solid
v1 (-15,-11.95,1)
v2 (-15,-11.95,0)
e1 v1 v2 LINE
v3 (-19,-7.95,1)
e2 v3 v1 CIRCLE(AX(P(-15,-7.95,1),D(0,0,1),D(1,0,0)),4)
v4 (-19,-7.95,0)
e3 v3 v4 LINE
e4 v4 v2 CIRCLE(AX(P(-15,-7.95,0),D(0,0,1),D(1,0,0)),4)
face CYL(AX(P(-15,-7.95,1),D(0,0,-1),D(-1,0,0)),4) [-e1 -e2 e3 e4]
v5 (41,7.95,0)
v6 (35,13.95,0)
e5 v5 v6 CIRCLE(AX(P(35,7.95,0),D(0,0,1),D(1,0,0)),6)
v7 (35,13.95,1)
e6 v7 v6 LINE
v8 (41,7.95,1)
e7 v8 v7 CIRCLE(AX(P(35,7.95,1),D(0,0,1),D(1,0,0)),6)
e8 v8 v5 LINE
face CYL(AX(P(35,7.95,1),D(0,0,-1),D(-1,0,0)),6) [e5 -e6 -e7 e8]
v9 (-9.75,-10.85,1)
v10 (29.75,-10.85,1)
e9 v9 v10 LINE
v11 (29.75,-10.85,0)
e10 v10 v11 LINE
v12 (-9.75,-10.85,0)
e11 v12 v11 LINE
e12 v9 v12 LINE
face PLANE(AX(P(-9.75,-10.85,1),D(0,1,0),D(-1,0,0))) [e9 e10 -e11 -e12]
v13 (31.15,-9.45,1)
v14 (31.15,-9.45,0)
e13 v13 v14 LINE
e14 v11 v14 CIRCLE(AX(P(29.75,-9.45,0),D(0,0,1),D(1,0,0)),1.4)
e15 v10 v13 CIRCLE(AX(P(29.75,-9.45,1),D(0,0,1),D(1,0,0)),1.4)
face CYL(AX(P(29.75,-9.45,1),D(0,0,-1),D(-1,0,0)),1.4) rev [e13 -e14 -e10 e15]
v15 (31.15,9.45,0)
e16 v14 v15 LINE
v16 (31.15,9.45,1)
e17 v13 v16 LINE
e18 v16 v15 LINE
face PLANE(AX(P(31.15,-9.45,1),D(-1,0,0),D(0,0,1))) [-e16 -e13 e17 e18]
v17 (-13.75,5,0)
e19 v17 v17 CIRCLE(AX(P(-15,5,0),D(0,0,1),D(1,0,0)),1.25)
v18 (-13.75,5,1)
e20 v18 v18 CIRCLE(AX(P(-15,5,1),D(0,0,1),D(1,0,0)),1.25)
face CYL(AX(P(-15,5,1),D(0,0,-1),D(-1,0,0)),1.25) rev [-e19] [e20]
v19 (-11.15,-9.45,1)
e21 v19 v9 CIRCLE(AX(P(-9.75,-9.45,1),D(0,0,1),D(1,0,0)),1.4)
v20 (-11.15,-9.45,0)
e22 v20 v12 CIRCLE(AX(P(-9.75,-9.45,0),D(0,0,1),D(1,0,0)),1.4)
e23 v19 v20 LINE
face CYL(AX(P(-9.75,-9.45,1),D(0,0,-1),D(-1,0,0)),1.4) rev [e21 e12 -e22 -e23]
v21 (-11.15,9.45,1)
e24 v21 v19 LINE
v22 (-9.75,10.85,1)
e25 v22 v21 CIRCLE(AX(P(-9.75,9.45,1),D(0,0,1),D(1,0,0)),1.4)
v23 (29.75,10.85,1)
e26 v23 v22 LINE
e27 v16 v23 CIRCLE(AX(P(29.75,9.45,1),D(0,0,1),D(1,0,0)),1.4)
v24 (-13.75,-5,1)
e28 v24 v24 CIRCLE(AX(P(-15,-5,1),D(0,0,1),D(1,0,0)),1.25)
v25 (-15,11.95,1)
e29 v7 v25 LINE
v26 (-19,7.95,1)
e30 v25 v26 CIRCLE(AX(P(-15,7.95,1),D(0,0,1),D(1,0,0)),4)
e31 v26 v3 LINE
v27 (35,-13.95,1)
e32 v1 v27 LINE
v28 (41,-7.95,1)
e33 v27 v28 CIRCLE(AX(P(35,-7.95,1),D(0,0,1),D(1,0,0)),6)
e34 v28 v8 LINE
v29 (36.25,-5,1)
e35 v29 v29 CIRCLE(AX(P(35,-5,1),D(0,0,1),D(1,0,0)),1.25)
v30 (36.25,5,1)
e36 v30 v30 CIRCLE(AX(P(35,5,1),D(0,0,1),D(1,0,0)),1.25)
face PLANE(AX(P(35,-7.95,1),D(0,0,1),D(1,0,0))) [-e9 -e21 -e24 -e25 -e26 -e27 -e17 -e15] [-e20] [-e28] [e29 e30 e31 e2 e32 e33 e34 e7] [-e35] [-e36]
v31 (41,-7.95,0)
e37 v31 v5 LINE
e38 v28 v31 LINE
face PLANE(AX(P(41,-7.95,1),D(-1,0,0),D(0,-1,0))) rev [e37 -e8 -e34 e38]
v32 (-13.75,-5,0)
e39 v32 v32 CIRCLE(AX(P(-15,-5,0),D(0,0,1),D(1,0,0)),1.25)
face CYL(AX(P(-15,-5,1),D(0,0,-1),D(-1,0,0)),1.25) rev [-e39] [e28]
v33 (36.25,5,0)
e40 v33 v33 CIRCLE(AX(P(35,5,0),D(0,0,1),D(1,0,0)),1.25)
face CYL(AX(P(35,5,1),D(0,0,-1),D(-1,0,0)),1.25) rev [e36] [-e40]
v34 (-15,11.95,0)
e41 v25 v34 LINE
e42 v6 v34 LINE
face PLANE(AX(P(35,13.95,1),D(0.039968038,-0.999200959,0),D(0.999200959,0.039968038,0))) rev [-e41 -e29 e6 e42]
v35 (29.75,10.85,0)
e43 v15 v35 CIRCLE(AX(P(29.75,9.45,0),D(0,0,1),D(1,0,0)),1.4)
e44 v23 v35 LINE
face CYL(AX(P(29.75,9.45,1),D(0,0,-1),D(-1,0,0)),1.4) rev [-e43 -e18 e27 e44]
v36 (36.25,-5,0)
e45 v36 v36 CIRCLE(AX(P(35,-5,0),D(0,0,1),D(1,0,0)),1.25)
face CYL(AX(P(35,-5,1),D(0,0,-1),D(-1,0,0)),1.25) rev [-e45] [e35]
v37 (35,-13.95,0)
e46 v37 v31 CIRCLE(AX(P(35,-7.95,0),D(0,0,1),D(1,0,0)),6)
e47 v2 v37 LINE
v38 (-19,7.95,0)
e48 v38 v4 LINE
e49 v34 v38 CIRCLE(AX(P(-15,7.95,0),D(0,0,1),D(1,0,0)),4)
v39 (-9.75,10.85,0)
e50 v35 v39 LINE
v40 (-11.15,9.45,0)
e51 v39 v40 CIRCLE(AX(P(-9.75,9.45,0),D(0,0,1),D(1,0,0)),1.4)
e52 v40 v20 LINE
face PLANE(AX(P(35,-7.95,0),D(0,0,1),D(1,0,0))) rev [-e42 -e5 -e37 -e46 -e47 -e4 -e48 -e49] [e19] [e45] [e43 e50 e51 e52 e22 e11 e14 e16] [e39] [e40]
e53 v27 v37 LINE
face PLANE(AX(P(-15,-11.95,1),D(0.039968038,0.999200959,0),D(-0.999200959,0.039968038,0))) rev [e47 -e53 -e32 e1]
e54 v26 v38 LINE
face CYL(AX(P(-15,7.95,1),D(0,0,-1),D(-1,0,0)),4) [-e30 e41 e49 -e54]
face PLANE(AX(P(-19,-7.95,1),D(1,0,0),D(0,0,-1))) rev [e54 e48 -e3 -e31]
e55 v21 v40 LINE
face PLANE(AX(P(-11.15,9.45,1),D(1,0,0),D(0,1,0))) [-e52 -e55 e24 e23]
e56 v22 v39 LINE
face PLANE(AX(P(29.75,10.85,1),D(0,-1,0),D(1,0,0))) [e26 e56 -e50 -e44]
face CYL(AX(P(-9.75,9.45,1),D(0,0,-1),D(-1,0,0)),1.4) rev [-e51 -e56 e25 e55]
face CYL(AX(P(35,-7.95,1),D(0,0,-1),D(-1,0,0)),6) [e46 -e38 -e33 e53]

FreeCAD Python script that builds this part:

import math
import FreeCAD as App
import Part
import Sketcher

V = App.Vector
Q = App.Units.Quantity

doc = App.newDocument("Part")
params = doc.addObject("Spreadsheet::Sheet", "Params")
for row, (alias, value) in enumerate([
    ("sketch1_radius", "6 mm"),
    ("sketch1_radius2", "4 mm"),
    ("sketch1_diameter", "2.5 mm"),
    ("sketch1_radius3", "1.4 mm"),
    ("sketch1_width", "39.5 mm"),
    ("pad1_length", "1 mm"),
], start=1):
    params.set(f"A{row}", alias)
    params.set(f"B{row}", "=" + value)
    params.setAlias(f"B{row}", alias)

body = doc.addObject("PartDesign::Body", "Body")

# Sketch on XY plane
sketch1 = body.newObject("Sketcher::SketchObject", "Sketch")
sketch1.AttachmentSupport = (doc.getObject("XY_Plane"), [""])
sketch1.MapMode = "FlatFace"
sketch1.addGeometry(Part.LineSegment(V(41, -8, 0), V(41, 8, 0)), False)
sketch1.addGeometry(Part.ArcOfCircle(Part.Circle(V(35, 8, 0), V(0, 0, 1), 6), math.radians(0), math.radians(90)), False)
sketch1.addGeometry(Part.LineSegment(V(35, 13.9, 0), V(-15, 11.9, 0)), False)
sketch1.addGeometry(Part.ArcOfCircle(Part.Circle(V(-15, 8, 0), V(0, 0, 1), 4), math.radians(90), math.radians(180)), False)
sketch1.addGeometry(Part.LineSegment(V(-19, 8, 0), V(-19, -8, 0)), False)
sketch1.addGeometry(Part.ArcOfCircle(Part.Circle(V(-15, -8, 0), V(0, 0, 1), 4), math.radians(180), math.radians(270)), False)
sketch1.addGeometry(Part.LineSegment(V(-15, -11.9, 0), V(35, -13.9, 0)), False)
sketch1.addGeometry(Part.ArcOfCircle(Part.Circle(V(35, -8, 0), V(0, 0, 1), 6), math.radians(-90), math.radians(0)), False)
sketch1.addGeometry(Part.Circle(V(-15, -5, 0), V(0, 0, 1), 1.2), False)
sketch1.addGeometry(Part.Circle(V(35, -5, 0), V(0, 0, 1), 1.2), False)
sketch1.addGeometry(Part.Circle(V(-15, 5, 0), V(0, 0, 1), 1.2), False)
sketch1.addGeometry(Part.LineSegment(V(-9.8, 10.8, 0), V(29.8, 10.8, 0)), False)
sketch1.addGeometry(Part.ArcOfCircle(Part.Circle(V(29.8, 9.5, 0), V(0, 0, 1), 1.4), math.radians(0), math.radians(90)), False)
sketch1.addGeometry(Part.LineSegment(V(31.1, 9.4, 0), V(31.1, -9.4, 0)), False)
sketch1.addGeometry(Part.ArcOfCircle(Part.Circle(V(29.8, -9.5, 0), V(0, 0, 1), 1.4), math.radians(-90), math.radians(0)), False)
sketch1.addGeometry(Part.LineSegment(V(29.8, -10.8, 0), V(-9.8, -10.8, 0)), False)
sketch1.addGeometry(Part.ArcOfCircle(Part.Circle(V(-9.8, -9.5, 0), V(0, 0, 1), 1.4), math.radians(180), math.radians(270)), False)
sketch1.addGeometry(Part.LineSegment(V(-11.2, -9.4, 0), V(-11.2, 9.4, 0)), False)
sketch1.addGeometry(Part.ArcOfCircle(Part.Circle(V(-9.8, 9.5, 0), V(0, 0, 1), 1.4), math.radians(90), math.radians(180)), False)
sketch1.addGeometry(Part.Circle(V(35, 5, 0), V(0, 0, 1), 1.2), False)
sketch1.addConstraint(Sketcher.Constraint("Tangent", 0, 2, 1, 1))
sketch1.addConstraint(Sketcher.Constraint("Coincident", 1, 2, 2, 1))
sketch1.addConstraint(Sketcher.Constraint("Coincident", 2, 2, 3, 1))
sketch1.addConstraint(Sketcher.Constraint("Tangent", 3, 2, 4, 1))
sketch1.addConstraint(Sketcher.Constraint("Tangent", 4, 2, 5, 1))
sketch1.addConstraint(Sketcher.Constraint("Coincident", 5, 2, 6, 1))
sketch1.addConstraint(Sketcher.Constraint("Coincident", 6, 2, 7, 1))
sketch1.addConstraint(Sketcher.Constraint("Tangent", 7, 2, 0, 1))
sketch1.addConstraint(Sketcher.Constraint("Tangent", 11, 2, 12, 2))
sketch1.addConstraint(Sketcher.Constraint("Tangent", 12, 1, 13, 1))
sketch1.addConstraint(Sketcher.Constraint("Tangent", 13, 2, 14, 2))
sketch1.addConstraint(Sketcher.Constraint("Tangent", 14, 1, 15, 1))
sketch1.addConstraint(Sketcher.Constraint("Tangent", 15, 2, 16, 2))
sketch1.addConstraint(Sketcher.Constraint("Tangent", 16, 1, 17, 1))
sketch1.addConstraint(Sketcher.Constraint("Tangent", 17, 2, 18, 2))
sketch1.addConstraint(Sketcher.Constraint("Tangent", 18, 1, 11, 1))
sketch1.addConstraint(Sketcher.Constraint("Vertical", 0))
sketch1.addConstraint(Sketcher.Constraint("Vertical", 4))
sketch1.addConstraint(Sketcher.Constraint("Horizontal", 11))
sketch1.addConstraint(Sketcher.Constraint("Vertical", 13))
sketch1.addConstraint(Sketcher.Constraint("Horizontal", 15))
sketch1.addConstraint(Sketcher.Constraint("Vertical", 17))
sketch1.addConstraint(Sketcher.Constraint("Equal", 3, 5))
sketch1.addConstraint(Sketcher.Constraint("Equal", 1, 7))
sketch1.addConstraint(Sketcher.Constraint("Equal", 8, 9))
sketch1.addConstraint(Sketcher.Constraint("Equal", 9, 10))
sketch1.addConstraint(Sketcher.Constraint("Equal", 12, 14))
sketch1.addConstraint(Sketcher.Constraint("Equal", 14, 16))
sketch1.addConstraint(Sketcher.Constraint("Equal", 16, 18))
sketch1.addConstraint(Sketcher.Constraint("Equal", 10, 19))
sketch1.addConstraint(Sketcher.Constraint("Symmetric", 8, 3, 10, 3, -1))
sketch1.addConstraint(Sketcher.Constraint("Symmetric", 9, 3, 19, 3, -1))
sketch1.addConstraint(Sketcher.Constraint("Symmetric", 2, 2, 5, 2, -1))
sketch1.addConstraint(Sketcher.Constraint("Symmetric", 1, 2, 6, 2, -1))
sketch1.addConstraint(Sketcher.Constraint("Horizontal", 1, 3, 3, 3))
sketch1.addConstraint(Sketcher.Constraint("Horizontal", 8, 3, 9, 3))
sketch1.addConstraint(Sketcher.Constraint("Vertical", 5, 3, 8, 3))
sketch1.addConstraint(Sketcher.Constraint("Vertical", 7, 3, 9, 3))
sketch1.addConstraint(Sketcher.Constraint("Vertical", 19, 3, 1, 2))
sketch1.addConstraint(Sketcher.Constraint("Vertical", 10, 3, 2, 2))
sketch1.addConstraint(Sketcher.Constraint("Radius", 1, Q("6 mm")))
sketch1.addConstraint(Sketcher.Constraint("Radius", 3, Q("4 mm")))
sketch1.addConstraint(Sketcher.Constraint("Diameter", 8, Q("2.5 mm")))
sketch1.addConstraint(Sketcher.Constraint("Radius", 12, Q("1.4 mm")))
sketch1.addConstraint(Sketcher.Constraint("DistanceX", 11, 1, 11, 2, Q("39.5 mm")))
sketch1.addConstraint(Sketcher.Constraint("DistanceY", 0, 1, 0, 2, Q("15.9 mm")))
sketch1.addConstraint(Sketcher.Constraint("DistanceY", 13, 2, 13, 1, Q("18.9 mm")))
sketch1.addConstraint(Sketcher.Constraint("DistanceX", -1, 1, 1, 3, Q("35 mm")))
sketch1.addConstraint(Sketcher.Constraint("DistanceX", 3, 3, -1, 1, Q("15 mm")))
sketch1.addConstraint(Sketcher.Constraint("DistanceY", 8, 3, -1, 1, Q("5 mm")))
sketch1.addConstraint(Sketcher.Constraint("DistanceY", 1, 3, 12, 3, Q("1.5 mm")))
sketch1.addConstraint(Sketcher.Constraint("DistanceX", -1, 1, 12, 3, Q("29.75 mm")))
sketch1.setExpression("Constraints[40]", "Params.sketch1_radius")
sketch1.setExpression("Constraints[41]", "Params.sketch1_radius2")
sketch1.setExpression("Constraints[42]", "Params.sketch1_diameter")
sketch1.setExpression("Constraints[43]", "Params.sketch1_radius3")
sketch1.setExpression("Constraints[44]", "Params.sketch1_width")
pad1 = body.newObject("PartDesign::Pad", "Pad")
pad1.Profile = sketch1
pad1.setExpression("Length", "Params.pad1_length")

doc.recompute()
